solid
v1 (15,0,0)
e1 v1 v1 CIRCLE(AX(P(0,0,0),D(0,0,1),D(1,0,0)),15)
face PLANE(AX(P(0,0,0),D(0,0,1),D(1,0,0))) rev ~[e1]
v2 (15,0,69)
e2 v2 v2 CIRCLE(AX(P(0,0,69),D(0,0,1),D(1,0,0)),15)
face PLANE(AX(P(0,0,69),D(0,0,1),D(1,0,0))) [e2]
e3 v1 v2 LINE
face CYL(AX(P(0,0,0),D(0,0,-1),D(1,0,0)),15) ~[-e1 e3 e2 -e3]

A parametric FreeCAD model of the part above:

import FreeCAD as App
import Part
import Sketcher

V = App.Vector

doc = App.newDocument("Part")
body = doc.addObject("PartDesign::Body", "Body")

# Sketch on XY plane
sketch1 = body.newObject("Sketcher::SketchObject", "Sketch")
sketch1.AttachmentSupport = (doc.getObject("XY_Plane"), [""])
sketch1.MapMode = "FlatFace"
sketch1.addGeometry(Part.Circle(V(0, 0, 0), V(0, 0, 1), 15), False)
sketch1.addConstraint(Sketcher.Constraint("Coincident", 0, 3, -1, 1))
sketch1.addConstraint(Sketcher.Constraint("Diameter", 0, 30.0))
pad1 = body.newObject("PartDesign::Pad", "Pad")
pad1.Profile = sketch1
pad1.Length = 69

doc.recompute()
